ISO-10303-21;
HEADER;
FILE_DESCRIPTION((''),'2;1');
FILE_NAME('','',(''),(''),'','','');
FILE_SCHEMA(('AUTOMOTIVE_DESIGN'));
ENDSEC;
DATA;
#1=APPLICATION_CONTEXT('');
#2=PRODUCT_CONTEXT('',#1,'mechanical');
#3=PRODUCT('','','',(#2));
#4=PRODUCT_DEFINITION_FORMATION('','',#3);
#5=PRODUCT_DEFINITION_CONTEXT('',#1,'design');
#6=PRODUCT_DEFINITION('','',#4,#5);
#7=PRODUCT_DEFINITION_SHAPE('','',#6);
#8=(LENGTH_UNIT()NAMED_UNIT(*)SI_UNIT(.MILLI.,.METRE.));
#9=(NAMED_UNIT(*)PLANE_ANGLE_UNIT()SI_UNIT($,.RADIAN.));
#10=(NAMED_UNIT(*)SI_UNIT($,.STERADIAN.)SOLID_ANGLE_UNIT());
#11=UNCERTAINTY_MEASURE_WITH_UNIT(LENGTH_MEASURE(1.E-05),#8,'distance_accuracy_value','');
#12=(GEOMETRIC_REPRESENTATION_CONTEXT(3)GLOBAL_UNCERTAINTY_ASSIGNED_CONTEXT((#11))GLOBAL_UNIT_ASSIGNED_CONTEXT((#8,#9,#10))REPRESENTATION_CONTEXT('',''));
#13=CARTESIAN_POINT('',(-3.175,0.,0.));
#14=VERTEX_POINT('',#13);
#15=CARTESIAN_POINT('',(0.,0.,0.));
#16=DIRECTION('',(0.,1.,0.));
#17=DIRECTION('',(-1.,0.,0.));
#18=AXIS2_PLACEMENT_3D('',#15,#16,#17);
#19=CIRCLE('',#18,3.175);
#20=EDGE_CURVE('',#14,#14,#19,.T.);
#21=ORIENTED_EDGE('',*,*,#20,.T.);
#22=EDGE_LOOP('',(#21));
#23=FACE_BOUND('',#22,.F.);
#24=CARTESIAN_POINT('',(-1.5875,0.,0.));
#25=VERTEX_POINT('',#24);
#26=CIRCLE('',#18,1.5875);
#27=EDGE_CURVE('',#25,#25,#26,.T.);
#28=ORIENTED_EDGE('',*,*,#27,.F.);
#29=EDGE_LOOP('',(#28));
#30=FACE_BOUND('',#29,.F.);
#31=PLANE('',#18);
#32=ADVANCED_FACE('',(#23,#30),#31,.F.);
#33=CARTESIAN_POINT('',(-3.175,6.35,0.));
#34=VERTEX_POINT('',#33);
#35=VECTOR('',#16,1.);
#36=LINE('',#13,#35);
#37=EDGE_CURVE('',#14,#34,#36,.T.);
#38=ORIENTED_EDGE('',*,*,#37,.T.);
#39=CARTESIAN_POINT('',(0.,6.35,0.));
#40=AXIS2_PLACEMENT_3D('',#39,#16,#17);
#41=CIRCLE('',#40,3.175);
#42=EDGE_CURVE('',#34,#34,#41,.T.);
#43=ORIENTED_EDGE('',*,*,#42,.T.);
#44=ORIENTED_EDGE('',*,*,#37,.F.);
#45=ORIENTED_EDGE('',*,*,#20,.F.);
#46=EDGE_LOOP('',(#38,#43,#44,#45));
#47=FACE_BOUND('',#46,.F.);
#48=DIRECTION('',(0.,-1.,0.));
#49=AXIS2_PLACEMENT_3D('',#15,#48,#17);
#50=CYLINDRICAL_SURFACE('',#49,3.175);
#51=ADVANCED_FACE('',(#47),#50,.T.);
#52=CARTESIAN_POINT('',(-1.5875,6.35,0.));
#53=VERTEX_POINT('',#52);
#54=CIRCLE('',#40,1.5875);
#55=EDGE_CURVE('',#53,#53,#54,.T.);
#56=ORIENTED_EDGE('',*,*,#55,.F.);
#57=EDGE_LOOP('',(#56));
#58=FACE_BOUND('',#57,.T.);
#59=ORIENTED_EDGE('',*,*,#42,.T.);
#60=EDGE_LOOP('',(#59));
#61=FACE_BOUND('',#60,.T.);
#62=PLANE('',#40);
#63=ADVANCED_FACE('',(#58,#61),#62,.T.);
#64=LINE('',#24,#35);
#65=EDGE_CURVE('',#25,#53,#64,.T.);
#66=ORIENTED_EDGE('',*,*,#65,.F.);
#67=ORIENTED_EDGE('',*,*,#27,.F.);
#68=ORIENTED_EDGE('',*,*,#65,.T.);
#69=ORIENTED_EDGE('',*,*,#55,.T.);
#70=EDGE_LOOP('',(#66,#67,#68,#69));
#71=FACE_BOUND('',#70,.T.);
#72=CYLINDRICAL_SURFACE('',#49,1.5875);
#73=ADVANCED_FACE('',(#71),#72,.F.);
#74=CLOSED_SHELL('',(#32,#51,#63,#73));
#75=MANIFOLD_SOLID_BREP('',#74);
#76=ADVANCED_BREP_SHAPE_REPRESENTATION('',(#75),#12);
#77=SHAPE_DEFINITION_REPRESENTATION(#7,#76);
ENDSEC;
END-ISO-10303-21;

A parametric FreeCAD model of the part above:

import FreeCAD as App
import Part
import Sketcher
Q = App.Units.Quantity

doc = App.newDocument("Part")
body = doc.addObject("PartDesign::Body", "Body")

# Sketch on XZ plane
sketch1 = body.newObject("Sketcher::SketchObject", "Sketch")
sketch1.AttachmentSupport = (doc.getObject("XZ_Plane"), [""])
sketch1.MapMode = "FlatFace"
sketch1.addGeometry([
    Part.Circle(App.Vector(0, 0, 0), App.Vector(0, 0, 1), 3.2),
    Part.Circle(App.Vector(0, 0, 0), App.Vector(0, 0, 1), 1.6),
], False)
sketch1.addConstraint([
    Sketcher.Constraint("Coincident", 0, 3, -1, 1),
    Sketcher.Constraint("Coincident", 1, 3, -1, 1),
    Sketcher.Constraint("Diameter", 0, Q("0.25 in")),
    Sketcher.Constraint("Diameter", 1, Q("0.125 in")),
])
pad1 = body.newObject("PartDesign::Pad", "Pad")
pad1.Profile = sketch1
pad1.Length = Q("0.25 in")
pad1.Reversed = True

doc.recompute()
